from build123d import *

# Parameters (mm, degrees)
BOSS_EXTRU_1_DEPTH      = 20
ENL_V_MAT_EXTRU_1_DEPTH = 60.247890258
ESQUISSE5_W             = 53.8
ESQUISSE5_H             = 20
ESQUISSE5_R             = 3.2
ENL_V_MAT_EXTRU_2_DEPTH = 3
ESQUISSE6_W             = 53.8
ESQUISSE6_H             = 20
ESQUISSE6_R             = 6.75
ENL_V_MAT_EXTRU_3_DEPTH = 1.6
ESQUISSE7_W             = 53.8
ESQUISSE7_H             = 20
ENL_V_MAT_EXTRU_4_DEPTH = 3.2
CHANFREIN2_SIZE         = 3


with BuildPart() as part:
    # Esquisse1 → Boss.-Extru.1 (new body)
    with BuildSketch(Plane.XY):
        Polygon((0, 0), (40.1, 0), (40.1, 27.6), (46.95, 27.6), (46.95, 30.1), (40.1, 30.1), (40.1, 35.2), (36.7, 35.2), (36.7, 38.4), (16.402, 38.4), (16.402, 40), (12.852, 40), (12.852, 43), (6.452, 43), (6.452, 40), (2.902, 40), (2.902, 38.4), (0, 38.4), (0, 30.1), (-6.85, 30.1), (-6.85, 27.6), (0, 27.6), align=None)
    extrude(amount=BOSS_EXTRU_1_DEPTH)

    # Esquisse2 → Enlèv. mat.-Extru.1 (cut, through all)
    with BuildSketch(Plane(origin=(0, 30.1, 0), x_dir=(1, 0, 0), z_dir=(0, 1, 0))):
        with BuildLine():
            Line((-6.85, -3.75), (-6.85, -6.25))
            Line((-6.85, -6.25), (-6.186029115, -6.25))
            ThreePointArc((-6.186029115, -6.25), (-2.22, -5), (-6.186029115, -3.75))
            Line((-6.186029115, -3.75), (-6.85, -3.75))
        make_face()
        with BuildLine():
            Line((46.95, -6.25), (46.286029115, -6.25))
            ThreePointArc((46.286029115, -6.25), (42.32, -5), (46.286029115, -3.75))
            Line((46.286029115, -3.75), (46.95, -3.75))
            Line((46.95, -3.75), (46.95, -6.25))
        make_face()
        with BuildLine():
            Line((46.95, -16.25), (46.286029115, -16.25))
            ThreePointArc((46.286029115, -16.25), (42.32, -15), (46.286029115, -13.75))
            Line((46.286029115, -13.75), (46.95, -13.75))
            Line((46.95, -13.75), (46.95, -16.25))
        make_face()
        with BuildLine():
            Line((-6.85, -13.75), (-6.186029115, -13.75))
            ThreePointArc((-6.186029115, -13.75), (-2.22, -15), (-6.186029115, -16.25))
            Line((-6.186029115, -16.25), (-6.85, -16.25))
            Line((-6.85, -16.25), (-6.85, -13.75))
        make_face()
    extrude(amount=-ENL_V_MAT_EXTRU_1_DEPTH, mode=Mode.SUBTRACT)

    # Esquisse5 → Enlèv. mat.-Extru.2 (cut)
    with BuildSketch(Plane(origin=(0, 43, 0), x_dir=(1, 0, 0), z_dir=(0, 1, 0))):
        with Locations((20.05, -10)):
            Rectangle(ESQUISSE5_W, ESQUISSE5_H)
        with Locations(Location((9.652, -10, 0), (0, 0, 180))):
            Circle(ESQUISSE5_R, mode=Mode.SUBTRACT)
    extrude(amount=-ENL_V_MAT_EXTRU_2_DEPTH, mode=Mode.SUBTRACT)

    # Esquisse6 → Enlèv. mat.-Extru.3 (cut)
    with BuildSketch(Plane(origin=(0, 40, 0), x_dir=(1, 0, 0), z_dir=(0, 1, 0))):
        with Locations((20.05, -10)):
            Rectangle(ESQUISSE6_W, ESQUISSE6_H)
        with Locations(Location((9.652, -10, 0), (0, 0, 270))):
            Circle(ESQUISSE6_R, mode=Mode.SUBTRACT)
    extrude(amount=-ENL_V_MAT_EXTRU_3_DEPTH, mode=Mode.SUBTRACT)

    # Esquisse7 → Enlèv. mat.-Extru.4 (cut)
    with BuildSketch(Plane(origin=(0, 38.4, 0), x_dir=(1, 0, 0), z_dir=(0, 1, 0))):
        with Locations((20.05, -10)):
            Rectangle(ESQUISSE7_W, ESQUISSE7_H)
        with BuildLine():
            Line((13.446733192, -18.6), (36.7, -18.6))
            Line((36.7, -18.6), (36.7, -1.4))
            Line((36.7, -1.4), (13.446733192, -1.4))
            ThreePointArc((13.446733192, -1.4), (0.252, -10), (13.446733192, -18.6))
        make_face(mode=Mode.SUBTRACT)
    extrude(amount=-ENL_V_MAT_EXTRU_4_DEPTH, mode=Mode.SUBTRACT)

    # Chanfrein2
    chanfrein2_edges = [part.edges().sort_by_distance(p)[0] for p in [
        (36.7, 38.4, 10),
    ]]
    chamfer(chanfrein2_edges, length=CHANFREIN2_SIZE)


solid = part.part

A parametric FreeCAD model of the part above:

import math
import FreeCAD as App
import Part
import Sketcher


def edges_at(feature, points):
    """Names of the edges that pass closest to the given points."""
    edges = feature.Shape.Edges
    near = lambda p: min(range(len(edges)), key=lambda i: edges[i].distToShape(Part.Vertex(*p))[0])
    return sorted({f"Edge{near(p) + 1}" for p in points})


def add_polygon(sketch, points):
    """Adds a closed chain of lines whose ends are joined by coincident constraints."""
    first, n = sketch.GeometryCount, len(points)
    for a, b in zip(points, points[1:] + points[:1]):
        sketch.addGeometry(Part.LineSegment(App.Vector(*a, 0), App.Vector(*b, 0)), False)
    for i in range(n):
        sketch.addConstraint(Sketcher.Constraint("Coincident", first + i, 2, first + (i + 1) % n, 1))

doc = App.newDocument("Part")
body = doc.addObject("PartDesign::Body", "Body")

# Sketch on XY plane
sketch1 = body.newObject("Sketcher::SketchObject", "Sketch")
sketch1.AttachmentSupport = (doc.getObject("XY_Plane"), [""])
sketch1.MapMode = "FlatFace"
add_polygon(sketch1, [(0, 0), (40.1, 0), (40.1, 27.6), (47, 27.6), (47, 30.1), (40.1, 30.1), (40.1, 35.2), (36.7, 35.2), (36.7, 38.4), (16.4, 38.4), (16.4, 40), (12.9, 40), (12.9, 43), (6.5, 43), (6.5, 40), (2.9, 40), (2.9, 38.4), (0, 38.4), (0, 30.1), (-6.8, 30.1), (-6.8, 27.6), (0, 27.6)])  # lines 0-21
sketch1.addConstraint(Sketcher.Constraint("Horizontal", 0))
sketch1.addConstraint(Sketcher.Constraint("Vertical", 1))
sketch1.addConstraint(Sketcher.Constraint("Horizontal", 2))
sketch1.addConstraint(Sketcher.Constraint("Vertical", 3))
sketch1.addConstraint(Sketcher.Constraint("Horizontal", 4))
sketch1.addConstraint(Sketcher.Constraint("Vertical", 5))
sketch1.addConstraint(Sketcher.Constraint("Horizontal", 6))
sketch1.addConstraint(Sketcher.Constraint("Vertical", 7))
sketch1.addConstraint(Sketcher.Constraint("Horizontal", 8))
sketch1.addConstraint(Sketcher.Constraint("Vertical", 9))
sketch1.addConstraint(Sketcher.Constraint("Horizontal", 10))
sketch1.addConstraint(Sketcher.Constraint("Vertical", 11))
sketch1.addConstraint(Sketcher.Constraint("Horizontal", 12))
sketch1.addConstraint(Sketcher.Constraint("Vertical", 13))
sketch1.addConstraint(Sketcher.Constraint("Horizontal", 14))
sketch1.addConstraint(Sketcher.Constraint("Vertical", 15))
sketch1.addConstraint(Sketcher.Constraint("Horizontal", 16))
sketch1.addConstraint(Sketcher.Constraint("Vertical", 17))
sketch1.addConstraint(Sketcher.Constraint("Horizontal", 18))
sketch1.addConstraint(Sketcher.Constraint("Vertical", 19))
sketch1.addConstraint(Sketcher.Constraint("Horizontal", 20))
sketch1.addConstraint(Sketcher.Constraint("Vertical", 21))
sketch1.addConstraint(Sketcher.Constraint("Coincident", 21, 2, -1, 1))
sketch1.addConstraint(Sketcher.Constraint("PointOnObject", 16, 2, -2))
sketch1.addConstraint(Sketcher.Constraint("Horizontal", 10, 2, 13, 2))
sketch1.addConstraint(Sketcher.Constraint("Horizontal", 8, 2, 15, 2))
sketch1.addConstraint(Sketcher.Constraint("Horizontal", 4, 2, 17, 2))
sketch1.addConstraint(Sketcher.Constraint("Horizontal", 2, 2, 19, 2))
sketch1.addConstraint(Sketcher.Constraint("Vertical", 1, 2, 4, 2))
sketch1.addConstraint(Sketcher.Constraint("Equal", 10, 14))
sketch1.addConstraint(Sketcher.Constraint("Equal", 4, 18))
sketch1.addConstraint(Sketcher.Constraint("DistanceY", 11, 1, 11, 2, 3.0))
sketch1.addConstraint(Sketcher.Constraint("DistanceX", 0, 1, 0, 2, 40.1))
sketch1.addConstraint(Sketcher.Constraint("DistanceX", 6, 2, 6, 1, 3.4))
sketch1.addConstraint(Sketcher.Constraint("DistanceX", 12, 2, 12, 1, 6.4))
sketch1.addConstraint(Sketcher.Constraint("DistanceY", 1, 1, 1, 2, 27.6))
sketch1.addConstraint(Sketcher.Constraint("DistanceY", 3, 1, 3, 2, 2.5))
sketch1.addConstraint(Sketcher.Constraint("DistanceY", 5, 1, 5, 2, 5.1))
sketch1.addConstraint(Sketcher.Constraint("DistanceY", 7, 1, 7, 2, 3.2))
sketch1.addConstraint(Sketcher.Constraint("DistanceY", 9, 1, 9, 2, 1.6))
sketch1.addConstraint(Sketcher.Constraint("DistanceX", 2, 1, 2, 2, 6.85))
sketch1.addConstraint(Sketcher.Constraint("DistanceX", 10, 2, 10, 1, 3.55))
sketch1.addConstraint(Sketcher.Constraint("DistanceX", 8, 2, 8, 1, 20.298))
pad1 = body.newObject("PartDesign::Pad", "Pad")
pad1.Profile = sketch1
pad1.Length = 20

# Sketch on XZ plane
sketch2 = body.newObject("Sketcher::SketchObject", "Sketch001")
sketch2.AttachmentSupport = (doc.getObject("XZ_Plane"), [""])
sketch2.MapMode = "FlatFace"
sketch2.AttachmentOffset = App.Placement(App.Vector(0, 0, -30.1), App.Rotation())
sketch2.addGeometry(Part.LineSegment(App.Vector(-6.8, 3.8, 0), App.Vector(-6.8, 6.2, 0)), False)
sketch2.addGeometry(Part.LineSegment(App.Vector(-6.8, 6.2, 0), App.Vector(-6.2, 6.2, 0)), False)
sketch2.addGeometry(Part.ArcOfCircle(Part.Circle(App.Vector(-4.4, 5, 0), App.Vector(0, 0, 1), 2.2), math.radians(-145), math.radians(145)), False)
sketch2.addGeometry(Part.LineSegment(App.Vector(-6.2, 3.8, 0), App.Vector(-6.8, 3.8, 0)), False)
sketch2.addGeometry(Part.LineSegment(App.Vector(46.3, 6.2, 0), App.Vector(47, 6.2, 0)), False)
sketch2.addGeometry(Part.LineSegment(App.Vector(47, 6.2, 0), App.Vector(47, 3.8, 0)), False)
sketch2.addGeometry(Part.LineSegment(App.Vector(47, 3.8, 0), App.Vector(46.3, 3.8, 0)), False)
sketch2.addGeometry(Part.ArcOfCircle(Part.Circle(App.Vector(44.5, 5, 0), App.Vector(0, 0, 1), 2.2), math.radians(35), math.radians(325)), False)
sketch2.addGeometry(Part.LineSegment(App.Vector(46.3, 16.2, 0), App.Vector(47, 16.2, 0)), False)
sketch2.addGeometry(Part.LineSegment(App.Vector(47, 16.2, 0), App.Vector(47, 13.8, 0)), False)
sketch2.addGeometry(Part.LineSegment(App.Vector(47, 13.8, 0), App.Vector(46.3, 13.8, 0)), False)
sketch2.addGeometry(Part.ArcOfCircle(Part.Circle(App.Vector(44.5, 15, 0), App.Vector(0, 0, 1), 2.2), math.radians(35), math.radians(325)), False)
sketch2.addGeometry(Part.LineSegment(App.Vector(-6.2, 13.8, 0), App.Vector(-6.8, 13.8, 0)), False)
sketch2.addGeometry(Part.LineSegment(App.Vector(-6.8, 13.8, 0), App.Vector(-6.8, 16.2, 0)), False)
sketch2.addGeometry(Part.LineSegment(App.Vector(-6.8, 16.2, 0), App.Vector(-6.2, 16.2, 0)), False)
sketch2.addGeometry(Part.ArcOfCircle(Part.Circle(App.Vector(-4.4, 15, 0), App.Vector(0, 0, 1), 2.2), math.radians(-145), math.radians(145)), False)
sketch2.addConstraint(Sketcher.Constraint("Coincident", 0, 2, 1, 1))
sketch2.addConstraint(Sketcher.Constraint("Coincident", 1, 2, 2, 2))
sketch2.addConstraint(Sketcher.Constraint("Coincident", 2, 1, 3, 1))
sketch2.addConstraint(Sketcher.Constraint("Coincident", 3, 2, 0, 1))
sketch2.addConstraint(Sketcher.Constraint("Coincident", 4, 2, 5, 1))
sketch2.addConstraint(Sketcher.Constraint("Coincident", 5, 2, 6, 1))
sketch2.addConstraint(Sketcher.Constraint("Coincident", 6, 2, 7, 2))
sketch2.addConstraint(Sketcher.Constraint("Coincident", 7, 1, 4, 1))
sketch2.addConstraint(Sketcher.Constraint("Coincident", 8, 2, 9, 1))
sketch2.addConstraint(Sketcher.Constraint("Coincident", 9, 2, 10, 1))
sketch2.addConstraint(Sketcher.Constraint("Coincident", 10, 2, 11, 2))
sketch2.addConstraint(Sketcher.Constraint("Coincident", 11, 1, 8, 1))
sketch2.addConstraint(Sketcher.Constraint("Coincident", 12, 2, 13, 1))
sketch2.addConstraint(Sketcher.Constraint("Coincident", 13, 2, 14, 1))
sketch2.addConstraint(Sketcher.Constraint("Coincident", 14, 2, 15, 2))
sketch2.addConstraint(Sketcher.Constraint("Coincident", 15, 1, 12, 1))
sketch2.addConstraint(Sketcher.Constraint("Vertical", 0))
sketch2.addConstraint(Sketcher.Constraint("Horizontal", 1))
sketch2.addConstraint(Sketcher.Constraint("Horizontal", 3))
sketch2.addConstraint(Sketcher.Constraint("Horizontal", 4))
sketch2.addConstraint(Sketcher.Constraint("Vertical", 5))
sketch2.addConstraint(Sketcher.Constraint("Horizontal", 6))
sketch2.addConstraint(Sketcher.Constraint("Horizontal", 8))
sketch2.addConstraint(Sketcher.Constraint("Vertical", 9))
sketch2.addConstraint(Sketcher.Constraint("Horizontal", 10))
sketch2.addConstraint(Sketcher.Constraint("Horizontal", 12))
sketch2.addConstraint(Sketcher.Constraint("Vertical", 13))
sketch2.addConstraint(Sketcher.Constraint("Horizontal", 14))
sketch2.addConstraint(Sketcher.Constraint("Equal", 2, 7))
sketch2.addConstraint(Sketcher.Constraint("Equal", 7, 11))
sketch2.addConstraint(Sketcher.Constraint("Equal", 11, 15))
sketch2.addConstraint(Sketcher.Constraint("Horizontal", 2, 3, 7, 3))
sketch2.addConstraint(Sketcher.Constraint("Horizontal", 11, 3, 15, 3))
sketch2.addConstraint(Sketcher.Constraint("Horizontal", 1, 2, 4, 2))
sketch2.addConstraint(Sketcher.Constraint("Horizontal", 3, 2, 5, 2))
sketch2.addConstraint(Sketcher.Constraint("Horizontal", 10, 2, 12, 2))
sketch2.addConstraint(Sketcher.Constraint("Horizontal", 11, 1, 13, 2))
sketch2.addConstraint(Sketcher.Constraint("Vertical", 7, 3, 11, 3))
sketch2.addConstraint(Sketcher.Constraint("Vertical", 2, 3, 15, 3))
sketch2.addConstraint(Sketcher.Constraint("Vertical", 1, 2, 2, 1))
sketch2.addConstraint(Sketcher.Constraint("Vertical", 5, 2, 8, 2))
sketch2.addConstraint(Sketcher.Constraint("Vertical", 7, 1, 10, 2))
sketch2.addConstraint(Sketcher.Constraint("Vertical", 10, 2, 11, 1))
sketch2.addConstraint(Sketcher.Constraint("Vertical", 3, 2, 12, 2))
sketch2.addConstraint(Sketcher.Constraint("Equal", 3, 4))
sketch2.addConstraint(Sketcher.Constraint("Radius", 2, 2.18))
sketch2.addConstraint(Sketcher.Constraint("DistanceY", 0, 1, 0, 2, 2.5))
sketch2.addConstraint(Sketcher.Constraint("DistanceY", -1, 1, 2, 3, 5.0))
sketch2.addConstraint(Sketcher.Constraint("DistanceY", -1, 1, 11, 3, 15.0))
sketch2.addConstraint(Sketcher.Constraint("DistanceX", 2, 3, -1, 1, 4.4))
sketch2.addConstraint(Sketcher.Constraint("DistanceX", -1, 1, 7, 3, 44.5))
sketch2.addConstraint(Sketcher.Constraint("DistanceX", 0, 2, -1, 1, 6.85))
pocket1 = body.newObject("PartDesign::Pocket", "Pocket")
pocket1.Profile = sketch2
pocket1.Type = "ThroughAll"
pocket1.Reversed = True

# Sketch on XZ plane
sketch3 = body.newObject("Sketcher::SketchObject", "Sketch002")
sketch3.AttachmentSupport = (doc.getObject("XZ_Plane"), [""])
sketch3.MapMode = "FlatFace"
sketch3.AttachmentOffset = App.Placement(App.Vector(0, 0, -43), App.Rotation())
add_polygon(sketch3, [(-6.8, 0), (-6.8, 20), (47, 20), (47, 0)])  # lines 0-3
sketch3.addGeometry(Part.Circle(App.Vector(9.7, 10, 0), App.Vector(0, 0, 1), 3.2), False)  # 4
sketch3.addConstraint(Sketcher.Constraint("Vertical", 0))
sketch3.addConstraint(Sketcher.Constraint("Horizontal", 1))
sketch3.addConstraint(Sketcher.Constraint("Vertical", 2))
sketch3.addConstraint(Sketcher.Constraint("Horizontal", 3))
sketch3.addConstraint(Sketcher.Constraint("PointOnObject", 2, 2, -1))
sketch3.addConstraint(Sketcher.Constraint("Diameter", 4, 6.4))
sketch3.addConstraint(Sketcher.Constraint("DistanceY", 0, 1, 0, 2, 20.0))
sketch3.addConstraint(Sketcher.Constraint("DistanceX", 1, 1, 1, 2, 53.8))
sketch3.addConstraint(Sketcher.Constraint("DistanceY", -1, 1, 4, 3, 10.0))
sketch3.addConstraint(Sketcher.Constraint("DistanceX", 0, 2, -1, 1, 6.85))
sketch3.addConstraint(Sketcher.Constraint("DistanceX", -1, 1, 4, 3, 9.652))
pocket2 = body.newObject("PartDesign::Pocket", "Pocket001")
pocket2.Profile = sketch3
pocket2.Length = 3
pocket2.Reversed = True

# Sketch on XZ plane
sketch4 = body.newObject("Sketcher::SketchObject", "Sketch003")
sketch4.AttachmentSupport = (doc.getObject("XZ_Plane"), [""])
sketch4.MapMode = "FlatFace"
sketch4.AttachmentOffset = App.Placement(App.Vector(0, 0, -40), App.Rotation())
add_polygon(sketch4, [(-7, 0), (-7, 20), (47, 20), (47, 0)])  # lines 0-3
sketch4.addGeometry(Part.Circle(App.Vector(10, 10, 0), App.Vector(0, 0, 1), 7), False)  # 4
sketch4.addConstraint(Sketcher.Constraint("Vertical", 0))
sketch4.addConstraint(Sketcher.Constraint("Horizontal", 1))
sketch4.addConstraint(Sketcher.Constraint("Vertical", 2))
sketch4.addConstraint(Sketcher.Constraint("Horizontal", 3))
sketch4.addConstraint(Sketcher.Constraint("PointOnObject", 2, 2, -1))
sketch4.addConstraint(Sketcher.Constraint("Diameter", 4, 13.5))
sketch4.addConstraint(Sketcher.Constraint("DistanceY", 0, 1, 0, 2, 20.0))
sketch4.addConstraint(Sketcher.Constraint("DistanceX", 1, 1, 1, 2, 53.8))
sketch4.addConstraint(Sketcher.Constraint("DistanceY", -1, 1, 4, 3, 10.0))
sketch4.addConstraint(Sketcher.Constraint("DistanceX", 0, 2, -1, 1, 6.85))
sketch4.addConstraint(Sketcher.Constraint("DistanceX", -1, 1, 4, 3, 9.652))
pocket3 = body.newObject("PartDesign::Pocket", "Pocket002")
pocket3.Profile = sketch4
pocket3.Length = 1.6
pocket3.Reversed = True

# Sketch on XZ plane
sketch5 = body.newObject("Sketcher::SketchObject", "Sketch004")
sketch5.AttachmentSupport = (doc.getObject("XZ_Plane"), [""])
sketch5.MapMode = "FlatFace"
sketch5.AttachmentOffset = App.Placement(App.Vector(0, 0, -38.4), App.Rotation())
add_polygon(sketch5, [(-7, 0), (-7, 20), (47, 20), (47, 0)])  # lines 0-3
sketch5.addGeometry(Part.LineSegment(App.Vector(37, 19, 0), App.Vector(13, 19, 0)), False)  # 4
sketch5.addGeometry(Part.ArcOfCircle(Part.Circle(App.Vector(10, 10, 0), App.Vector(0, 0, 1), 9), math.radians(66), math.radians(294)), False)  # 5
sketch5.addGeometry(Part.LineSegment(App.Vector(13, 1, 0), App.Vector(37, 1, 0)), False)  # 6
sketch5.addGeometry(Part.LineSegment(App.Vector(37, 1, 0), App.Vector(37, 19, 0)), False)  # 7
sketch5.addConstraint(Sketcher.Constraint("Coincident", 4, 2, 5, 1))
sketch5.addConstraint(Sketcher.Constraint("Coincident", 5, 2, 6, 1))
sketch5.addConstraint(Sketcher.Constraint("Coincident", 6, 2, 7, 1))
sketch5.addConstraint(Sketcher.Constraint("Coincident", 7, 2, 4, 1))
sketch5.addConstraint(Sketcher.Constraint("Vertical", 0))
sketch5.addConstraint(Sketcher.Constraint("Horizontal", 1))
sketch5.addConstraint(Sketcher.Constraint("Vertical", 2))
sketch5.addConstraint(Sketcher.Constraint("Horizontal", 3))
sketch5.addConstraint(Sketcher.Constraint("Horizontal", 4))
sketch5.addConstraint(Sketcher.Constraint("Horizontal", 6))
sketch5.addConstraint(Sketcher.Constraint("Vertical", 7))
sketch5.addConstraint(Sketcher.Constraint("PointOnObject", 2, 2, -1))
sketch5.addConstraint(Sketcher.Constraint("Vertical", 4, 2, 5, 2))
sketch5.addConstraint(Sketcher.Constraint("Radius", 5, 9.4))
sketch5.addConstraint(Sketcher.Constraint("DistanceY", 0, 1, 0, 2, 20.0))
sketch5.addConstraint(Sketcher.Constraint("DistanceX", 1, 1, 1, 2, 53.8))
sketch5.addConstraint(Sketcher.Constraint("DistanceY", 7, 1, 7, 2, 17.2))
sketch5.addConstraint(Sketcher.Constraint("DistanceY", -1, 1, 5, 3, 10.0))
sketch5.addConstraint(Sketcher.Constraint("DistanceX", -1, 1, 6, 2, 36.7))
sketch5.addConstraint(Sketcher.Constraint("DistanceX", 0, 2, -1, 1, 6.85))
sketch5.addConstraint(Sketcher.Constraint("DistanceX", -1, 1, 5, 3, 9.652))
pocket4 = body.newObject("PartDesign::Pocket", "Pocket003")
pocket4.Profile = sketch5
pocket4.Length = 3.2
pocket4.Reversed = True
doc.recompute()

chamfer = body.newObject("PartDesign::Chamfer", "Chamfer")
chamfer.Base = (pocket4, edges_at(pocket4, [(36.7, 38.4, 10)]))
chamfer.Size = 3

doc.recompute()
